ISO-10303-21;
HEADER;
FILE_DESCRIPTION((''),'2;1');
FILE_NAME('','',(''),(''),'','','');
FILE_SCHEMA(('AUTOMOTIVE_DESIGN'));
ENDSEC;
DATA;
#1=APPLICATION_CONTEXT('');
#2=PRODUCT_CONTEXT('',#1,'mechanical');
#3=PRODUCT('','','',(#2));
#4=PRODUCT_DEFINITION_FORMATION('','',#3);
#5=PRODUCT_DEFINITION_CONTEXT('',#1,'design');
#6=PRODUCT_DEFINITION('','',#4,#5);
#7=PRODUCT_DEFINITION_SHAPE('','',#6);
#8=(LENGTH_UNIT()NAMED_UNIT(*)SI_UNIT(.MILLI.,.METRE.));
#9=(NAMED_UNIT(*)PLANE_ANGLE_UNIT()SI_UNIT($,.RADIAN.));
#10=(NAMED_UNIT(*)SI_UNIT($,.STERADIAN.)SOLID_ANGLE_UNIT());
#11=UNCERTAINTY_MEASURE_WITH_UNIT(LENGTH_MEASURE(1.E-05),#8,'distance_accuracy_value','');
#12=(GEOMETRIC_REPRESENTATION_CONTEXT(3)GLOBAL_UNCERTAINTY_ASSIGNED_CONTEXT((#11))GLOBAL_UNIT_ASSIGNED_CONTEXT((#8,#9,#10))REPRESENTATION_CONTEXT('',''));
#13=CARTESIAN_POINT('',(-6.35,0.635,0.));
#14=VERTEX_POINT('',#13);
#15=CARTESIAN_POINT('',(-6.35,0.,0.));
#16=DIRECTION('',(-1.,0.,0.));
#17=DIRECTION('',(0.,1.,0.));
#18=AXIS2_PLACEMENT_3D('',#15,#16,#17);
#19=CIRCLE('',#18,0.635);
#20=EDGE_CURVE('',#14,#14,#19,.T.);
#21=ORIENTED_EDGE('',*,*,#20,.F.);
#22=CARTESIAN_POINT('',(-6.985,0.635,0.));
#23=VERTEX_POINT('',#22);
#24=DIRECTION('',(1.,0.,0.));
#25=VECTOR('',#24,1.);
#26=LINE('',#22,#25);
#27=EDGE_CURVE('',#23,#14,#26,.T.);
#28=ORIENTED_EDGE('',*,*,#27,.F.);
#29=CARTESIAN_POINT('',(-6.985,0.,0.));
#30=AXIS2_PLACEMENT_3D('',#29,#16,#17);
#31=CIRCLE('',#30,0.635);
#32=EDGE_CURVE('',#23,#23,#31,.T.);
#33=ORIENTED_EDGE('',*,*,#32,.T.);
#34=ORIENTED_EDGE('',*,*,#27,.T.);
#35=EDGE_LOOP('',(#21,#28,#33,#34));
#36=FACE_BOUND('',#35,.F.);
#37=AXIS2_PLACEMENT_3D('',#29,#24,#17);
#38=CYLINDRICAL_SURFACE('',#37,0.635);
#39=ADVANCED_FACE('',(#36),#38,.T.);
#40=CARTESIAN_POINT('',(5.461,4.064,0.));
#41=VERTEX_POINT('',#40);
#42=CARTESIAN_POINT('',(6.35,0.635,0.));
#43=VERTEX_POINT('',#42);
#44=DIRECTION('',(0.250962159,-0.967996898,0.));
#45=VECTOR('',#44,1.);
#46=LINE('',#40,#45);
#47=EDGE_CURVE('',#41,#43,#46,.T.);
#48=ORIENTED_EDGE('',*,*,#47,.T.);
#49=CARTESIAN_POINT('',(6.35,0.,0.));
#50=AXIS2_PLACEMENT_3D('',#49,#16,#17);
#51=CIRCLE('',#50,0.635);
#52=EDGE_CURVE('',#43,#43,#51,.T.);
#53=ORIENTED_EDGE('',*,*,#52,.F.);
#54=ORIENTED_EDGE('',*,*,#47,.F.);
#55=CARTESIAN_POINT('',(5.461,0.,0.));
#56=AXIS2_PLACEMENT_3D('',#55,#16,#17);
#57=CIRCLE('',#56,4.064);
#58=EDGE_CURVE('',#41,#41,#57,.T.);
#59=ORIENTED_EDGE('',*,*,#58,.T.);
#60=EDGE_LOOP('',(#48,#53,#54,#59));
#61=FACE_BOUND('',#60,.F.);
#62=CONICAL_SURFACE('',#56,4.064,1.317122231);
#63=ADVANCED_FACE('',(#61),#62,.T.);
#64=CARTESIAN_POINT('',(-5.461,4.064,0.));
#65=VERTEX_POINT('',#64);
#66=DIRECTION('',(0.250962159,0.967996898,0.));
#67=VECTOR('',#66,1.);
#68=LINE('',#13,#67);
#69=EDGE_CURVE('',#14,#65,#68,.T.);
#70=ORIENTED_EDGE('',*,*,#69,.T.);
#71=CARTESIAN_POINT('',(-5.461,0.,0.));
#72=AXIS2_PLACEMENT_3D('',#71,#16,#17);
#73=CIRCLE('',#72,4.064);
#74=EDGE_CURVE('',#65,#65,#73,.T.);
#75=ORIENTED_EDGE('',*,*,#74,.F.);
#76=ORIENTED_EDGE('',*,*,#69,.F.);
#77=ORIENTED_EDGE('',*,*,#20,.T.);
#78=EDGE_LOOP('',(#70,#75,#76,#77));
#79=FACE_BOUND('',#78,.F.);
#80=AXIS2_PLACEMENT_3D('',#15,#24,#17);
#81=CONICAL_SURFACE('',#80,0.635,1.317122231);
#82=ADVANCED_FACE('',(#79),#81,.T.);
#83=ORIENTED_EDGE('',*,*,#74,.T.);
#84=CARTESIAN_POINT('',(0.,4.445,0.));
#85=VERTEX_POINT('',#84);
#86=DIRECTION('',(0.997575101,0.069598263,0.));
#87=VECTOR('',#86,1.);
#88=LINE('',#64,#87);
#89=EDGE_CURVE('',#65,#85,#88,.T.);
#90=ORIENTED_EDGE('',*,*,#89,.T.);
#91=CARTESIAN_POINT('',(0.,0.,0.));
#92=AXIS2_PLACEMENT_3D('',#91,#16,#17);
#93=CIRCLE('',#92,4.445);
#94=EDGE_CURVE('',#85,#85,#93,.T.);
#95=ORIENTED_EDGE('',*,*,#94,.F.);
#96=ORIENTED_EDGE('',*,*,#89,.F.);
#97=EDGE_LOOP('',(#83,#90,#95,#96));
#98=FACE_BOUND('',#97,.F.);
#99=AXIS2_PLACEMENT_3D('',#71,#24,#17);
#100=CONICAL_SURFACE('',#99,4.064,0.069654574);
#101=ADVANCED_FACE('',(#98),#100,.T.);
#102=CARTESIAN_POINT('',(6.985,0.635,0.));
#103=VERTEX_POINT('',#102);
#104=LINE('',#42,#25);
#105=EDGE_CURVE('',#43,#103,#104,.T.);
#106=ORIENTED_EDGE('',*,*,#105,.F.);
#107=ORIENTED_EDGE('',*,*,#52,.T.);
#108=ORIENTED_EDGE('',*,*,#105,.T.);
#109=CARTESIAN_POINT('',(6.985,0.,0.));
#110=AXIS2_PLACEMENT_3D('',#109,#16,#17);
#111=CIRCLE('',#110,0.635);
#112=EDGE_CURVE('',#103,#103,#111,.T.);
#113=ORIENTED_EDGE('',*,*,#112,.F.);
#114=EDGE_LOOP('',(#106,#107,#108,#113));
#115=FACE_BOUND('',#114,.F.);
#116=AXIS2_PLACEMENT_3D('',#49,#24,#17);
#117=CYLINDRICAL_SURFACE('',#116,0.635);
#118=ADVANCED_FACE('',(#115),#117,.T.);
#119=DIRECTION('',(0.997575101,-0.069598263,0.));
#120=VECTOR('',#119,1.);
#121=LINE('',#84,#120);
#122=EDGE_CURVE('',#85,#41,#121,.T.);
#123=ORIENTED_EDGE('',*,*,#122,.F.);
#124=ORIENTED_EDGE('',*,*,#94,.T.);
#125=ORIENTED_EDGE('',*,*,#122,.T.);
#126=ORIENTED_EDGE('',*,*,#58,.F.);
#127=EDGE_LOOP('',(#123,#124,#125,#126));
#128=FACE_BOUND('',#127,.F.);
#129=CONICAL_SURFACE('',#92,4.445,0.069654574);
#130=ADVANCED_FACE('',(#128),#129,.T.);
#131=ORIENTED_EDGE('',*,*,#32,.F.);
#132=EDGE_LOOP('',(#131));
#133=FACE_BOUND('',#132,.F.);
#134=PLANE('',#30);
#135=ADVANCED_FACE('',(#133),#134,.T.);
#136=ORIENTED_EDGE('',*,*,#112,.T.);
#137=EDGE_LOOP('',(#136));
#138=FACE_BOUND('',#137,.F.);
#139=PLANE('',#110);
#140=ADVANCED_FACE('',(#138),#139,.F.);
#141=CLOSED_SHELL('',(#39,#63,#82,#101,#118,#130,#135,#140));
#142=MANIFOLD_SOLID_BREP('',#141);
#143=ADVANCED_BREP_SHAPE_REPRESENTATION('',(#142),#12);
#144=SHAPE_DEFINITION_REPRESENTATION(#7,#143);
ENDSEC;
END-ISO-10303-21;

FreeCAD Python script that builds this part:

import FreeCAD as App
import Part
import Sketcher
Q = App.Units.Quantity

doc = App.newDocument("Part")
params = doc.addObject("Spreadsheet::Sheet", "Params")
for row, (alias, value) in enumerate([
    ("sketch1_width", "0.55 in"),
    ("revolution_angle", "360 deg"),
], start=1):
    params.set(f"A{row}", alias)
    params.set(f"B{row}", "=" + value)
    params.setAlias(f"B{row}", alias)

body = doc.addObject("PartDesign::Body", "Body")

sketch1 = doc.addObject("Sketcher::SketchObject", "Sketch")
body.addObject(sketch1)
sketch1.AttachmentSupport = (doc.XY_Plane, [""])
sketch1.MapMode = "FlatFace"
sketch1.addGeometry([
    Part.LineSegment(App.Vector(-7, 0.6, 0), App.Vector(-7, 0, 0)),
    Part.LineSegment(App.Vector(-7, 0, 0), App.Vector(7, 0, 0)),
    Part.LineSegment(App.Vector(7, 0, 0), App.Vector(7, 0.6, 0)),
    Part.LineSegment(App.Vector(7, 0.6, 0), App.Vector(6.3, 0.6, 0)),
    Part.LineSegment(App.Vector(6.3, 0.6, 0), App.Vector(5.5, 4.1, 0)),
    Part.LineSegment(App.Vector(5.5, 4.1, 0), App.Vector(0, 4.4, 0)),
    Part.LineSegment(App.Vector(0, 4.4, 0), App.Vector(-5.5, 4.1, 0)),
    Part.LineSegment(App.Vector(-5.5, 4.1, 0), App.Vector(-6.3, 0.6, 0)),
    Part.LineSegment(App.Vector(-6.3, 0.6, 0), App.Vector(-7, 0.6, 0)),
], False)
sketch1.addConstraint([
    Sketcher.Constraint("Coincident", 0, 2, 1, 1),
    Sketcher.Constraint("Coincident", 1, 2, 2, 1),
    Sketcher.Constraint("Coincident", 2, 2, 3, 1),
    Sketcher.Constraint("Coincident", 3, 2, 4, 1),
    Sketcher.Constraint("Coincident", 4, 2, 5, 1),
    Sketcher.Constraint("Coincident", 5, 2, 6, 1),
    Sketcher.Constraint("Coincident", 6, 2, 7, 1),
    Sketcher.Constraint("Coincident", 7, 2, 8, 1),
    Sketcher.Constraint("Coincident", 8, 2, 0, 1),
    Sketcher.Constraint("Vertical", 0),
    Sketcher.Constraint("Horizontal", 1),
    Sketcher.Constraint("Vertical", 2),
    Sketcher.Constraint("Horizontal", 3),
    Sketcher.Constraint("Horizontal", 8),
    Sketcher.Constraint("Symmetric", 0, 2, 1, 2, -1, 1),
    Sketcher.Constraint("Symmetric", 4, 2, 6, 2, -2),
    Sketcher.Constraint("Symmetric", 3, 2, 7, 2, -2),
    Sketcher.Constraint("PointOnObject", 5, 2, -2),
    Sketcher.Constraint("Equal", 8, 0),
    Sketcher.Constraint("DistanceX", 1, 1, 1, 2, Q("0.55 in")),
    Sketcher.Constraint("DistanceX", 7, 2, 3, 2, Q("0.5 in")),
    Sketcher.Constraint("DistanceY", -1, 1, 4, 2, Q("0.16 in")),
    Sketcher.Constraint("DistanceX", 6, 2, 4, 2, Q("0.43 in")),
    Sketcher.Constraint("DistanceY", -1, 1, 5, 2, Q("0.175 in")),
])
sketch1.setExpression("Constraints[19]", "Params.sketch1_width")
revolution = doc.addObject("PartDesign::Revolution", "Revolution")
body.addObject(revolution)
revolution.Profile = sketch1
revolution.ReferenceAxis = (sketch1, ["H_Axis"])
revolution.setExpression("Angle", "Params.revolution_angle")

doc.recompute()
